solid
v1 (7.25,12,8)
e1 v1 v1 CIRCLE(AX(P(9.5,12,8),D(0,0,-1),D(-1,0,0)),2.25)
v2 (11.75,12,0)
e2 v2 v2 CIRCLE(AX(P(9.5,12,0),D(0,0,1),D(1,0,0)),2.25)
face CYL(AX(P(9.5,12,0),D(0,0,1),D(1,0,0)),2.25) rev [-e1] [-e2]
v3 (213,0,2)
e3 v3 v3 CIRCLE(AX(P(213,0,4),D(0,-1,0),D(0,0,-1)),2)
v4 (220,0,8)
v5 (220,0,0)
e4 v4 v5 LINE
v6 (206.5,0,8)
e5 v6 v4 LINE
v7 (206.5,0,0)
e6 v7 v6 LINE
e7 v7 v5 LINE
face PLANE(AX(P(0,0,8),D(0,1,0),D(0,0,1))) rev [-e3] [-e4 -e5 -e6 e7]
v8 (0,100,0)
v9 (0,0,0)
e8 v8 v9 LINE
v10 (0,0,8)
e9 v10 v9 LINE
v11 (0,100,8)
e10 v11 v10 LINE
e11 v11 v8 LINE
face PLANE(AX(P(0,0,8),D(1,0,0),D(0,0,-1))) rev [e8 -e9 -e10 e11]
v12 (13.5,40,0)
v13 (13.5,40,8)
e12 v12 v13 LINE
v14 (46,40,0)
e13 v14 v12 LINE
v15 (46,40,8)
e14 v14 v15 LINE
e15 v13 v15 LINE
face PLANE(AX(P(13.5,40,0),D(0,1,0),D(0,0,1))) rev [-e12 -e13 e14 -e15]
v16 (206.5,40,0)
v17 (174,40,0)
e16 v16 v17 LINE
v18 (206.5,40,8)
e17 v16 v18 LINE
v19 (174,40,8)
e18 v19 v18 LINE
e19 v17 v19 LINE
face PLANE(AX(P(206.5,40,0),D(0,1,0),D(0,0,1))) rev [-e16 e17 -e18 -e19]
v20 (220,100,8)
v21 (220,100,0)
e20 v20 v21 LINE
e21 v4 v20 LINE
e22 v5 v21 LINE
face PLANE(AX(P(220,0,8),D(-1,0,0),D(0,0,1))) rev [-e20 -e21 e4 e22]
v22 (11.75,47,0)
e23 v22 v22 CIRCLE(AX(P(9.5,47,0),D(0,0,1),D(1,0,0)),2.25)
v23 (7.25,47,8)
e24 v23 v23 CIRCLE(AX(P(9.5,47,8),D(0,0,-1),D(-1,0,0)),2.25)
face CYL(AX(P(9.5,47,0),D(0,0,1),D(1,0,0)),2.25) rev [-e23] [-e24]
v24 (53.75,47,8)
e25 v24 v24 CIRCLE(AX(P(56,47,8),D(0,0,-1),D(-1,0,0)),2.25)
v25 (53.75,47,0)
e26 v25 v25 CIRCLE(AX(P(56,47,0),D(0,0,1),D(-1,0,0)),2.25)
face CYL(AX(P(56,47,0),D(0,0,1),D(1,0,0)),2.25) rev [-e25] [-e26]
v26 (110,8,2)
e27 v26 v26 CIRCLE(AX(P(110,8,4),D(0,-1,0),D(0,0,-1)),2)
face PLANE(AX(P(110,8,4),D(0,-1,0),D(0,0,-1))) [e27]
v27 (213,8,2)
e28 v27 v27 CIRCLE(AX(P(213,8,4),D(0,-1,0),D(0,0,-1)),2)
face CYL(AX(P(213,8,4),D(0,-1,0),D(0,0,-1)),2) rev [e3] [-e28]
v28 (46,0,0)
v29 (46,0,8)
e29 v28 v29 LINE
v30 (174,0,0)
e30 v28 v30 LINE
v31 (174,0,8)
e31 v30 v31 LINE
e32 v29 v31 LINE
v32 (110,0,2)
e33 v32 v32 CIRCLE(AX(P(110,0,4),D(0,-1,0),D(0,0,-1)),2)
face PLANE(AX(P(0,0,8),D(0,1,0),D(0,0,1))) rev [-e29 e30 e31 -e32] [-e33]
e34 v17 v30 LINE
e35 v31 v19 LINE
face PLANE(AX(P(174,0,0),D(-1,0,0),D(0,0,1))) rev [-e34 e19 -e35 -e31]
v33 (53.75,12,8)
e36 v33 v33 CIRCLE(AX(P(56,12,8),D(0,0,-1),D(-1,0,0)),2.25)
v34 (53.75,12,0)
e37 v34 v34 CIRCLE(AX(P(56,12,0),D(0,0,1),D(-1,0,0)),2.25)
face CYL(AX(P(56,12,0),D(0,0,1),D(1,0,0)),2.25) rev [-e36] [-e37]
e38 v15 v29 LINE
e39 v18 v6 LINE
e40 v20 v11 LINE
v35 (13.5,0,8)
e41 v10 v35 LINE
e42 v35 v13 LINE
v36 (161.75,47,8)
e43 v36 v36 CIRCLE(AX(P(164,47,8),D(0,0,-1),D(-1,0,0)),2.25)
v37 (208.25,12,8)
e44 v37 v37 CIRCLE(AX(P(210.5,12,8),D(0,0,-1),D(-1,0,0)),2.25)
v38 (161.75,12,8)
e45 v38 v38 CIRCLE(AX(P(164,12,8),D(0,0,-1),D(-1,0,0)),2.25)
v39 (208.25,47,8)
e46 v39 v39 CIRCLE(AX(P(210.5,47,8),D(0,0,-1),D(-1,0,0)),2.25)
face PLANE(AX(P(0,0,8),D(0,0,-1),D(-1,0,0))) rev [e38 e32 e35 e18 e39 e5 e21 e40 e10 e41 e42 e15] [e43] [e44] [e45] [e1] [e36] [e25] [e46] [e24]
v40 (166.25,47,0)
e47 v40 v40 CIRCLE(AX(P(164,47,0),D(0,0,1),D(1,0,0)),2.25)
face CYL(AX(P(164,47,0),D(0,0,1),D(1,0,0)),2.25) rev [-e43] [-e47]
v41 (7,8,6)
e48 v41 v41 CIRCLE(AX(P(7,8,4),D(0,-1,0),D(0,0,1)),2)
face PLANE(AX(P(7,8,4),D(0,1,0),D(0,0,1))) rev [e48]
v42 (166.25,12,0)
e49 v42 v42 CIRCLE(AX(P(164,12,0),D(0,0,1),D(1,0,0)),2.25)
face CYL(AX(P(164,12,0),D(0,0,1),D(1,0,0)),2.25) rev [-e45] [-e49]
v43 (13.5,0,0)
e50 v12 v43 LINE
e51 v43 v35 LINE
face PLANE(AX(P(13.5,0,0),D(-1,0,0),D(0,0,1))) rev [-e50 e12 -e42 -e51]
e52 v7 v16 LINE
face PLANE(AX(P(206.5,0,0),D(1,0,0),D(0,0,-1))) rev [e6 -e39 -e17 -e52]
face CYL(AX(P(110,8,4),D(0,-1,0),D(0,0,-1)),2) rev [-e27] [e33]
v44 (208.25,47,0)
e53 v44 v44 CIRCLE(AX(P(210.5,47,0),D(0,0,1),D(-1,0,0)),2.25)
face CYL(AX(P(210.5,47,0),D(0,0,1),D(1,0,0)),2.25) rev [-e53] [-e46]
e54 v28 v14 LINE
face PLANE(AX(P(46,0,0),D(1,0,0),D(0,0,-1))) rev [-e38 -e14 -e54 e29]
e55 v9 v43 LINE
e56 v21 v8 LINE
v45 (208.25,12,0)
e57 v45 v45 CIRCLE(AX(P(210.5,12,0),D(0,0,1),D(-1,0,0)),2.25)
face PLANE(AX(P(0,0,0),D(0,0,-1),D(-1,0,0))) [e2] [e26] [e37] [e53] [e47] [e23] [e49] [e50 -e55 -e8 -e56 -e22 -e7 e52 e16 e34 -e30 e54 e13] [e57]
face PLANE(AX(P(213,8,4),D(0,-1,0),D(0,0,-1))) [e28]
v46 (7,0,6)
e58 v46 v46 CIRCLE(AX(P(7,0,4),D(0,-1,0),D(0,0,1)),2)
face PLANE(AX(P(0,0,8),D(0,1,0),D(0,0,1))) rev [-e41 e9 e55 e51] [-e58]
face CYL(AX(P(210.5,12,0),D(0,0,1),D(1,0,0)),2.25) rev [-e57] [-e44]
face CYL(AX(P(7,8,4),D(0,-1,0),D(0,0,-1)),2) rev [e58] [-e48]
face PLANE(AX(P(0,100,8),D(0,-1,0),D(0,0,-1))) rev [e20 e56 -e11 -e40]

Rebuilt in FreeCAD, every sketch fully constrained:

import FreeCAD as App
import Part
import Sketcher
Q = App.Units.Quantity

doc = App.newDocument("Part")
body = doc.addObject("PartDesign::Body", "Body")

# Sketch on XY plane
sketch1 = body.newObject("Sketcher::SketchObject", "Sketch")
sketch1.AttachmentSupport = (doc.getObject("XY_Plane"), [""])
sketch1.MapMode = "FlatFace"
sketch1.addGeometry(Part.LineSegment(App.Vector(0, 100, 0), App.Vector(0, 0, 0)), False)
sketch1.addGeometry(Part.LineSegment(App.Vector(0, 0, 0), App.Vector(220, 0, 0)), False)
sketch1.addGeometry(Part.LineSegment(App.Vector(220, 0, 0), App.Vector(220, 100, 0)), False)
sketch1.addGeometry(Part.LineSegment(App.Vector(220, 100, 0), App.Vector(0, 100, 0)), False)
sketch1.addConstraint(Sketcher.Constraint("Coincident", 0, 2, 1, 1))
sketch1.addConstraint(Sketcher.Constraint("Coincident", 1, 2, 2, 1))
sketch1.addConstraint(Sketcher.Constraint("Coincident", 2, 2, 3, 1))
sketch1.addConstraint(Sketcher.Constraint("Coincident", 3, 2, 0, 1))
sketch1.addConstraint(Sketcher.Constraint("Vertical", 0))
sketch1.addConstraint(Sketcher.Constraint("Horizontal", 1))
sketch1.addConstraint(Sketcher.Constraint("Vertical", 2))
sketch1.addConstraint(Sketcher.Constraint("Horizontal", 3))
sketch1.addConstraint(Sketcher.Constraint("Coincident", 0, 2, -1, 1))
sketch1.addConstraint(Sketcher.Constraint("DistanceX", 1, 1, 1, 2, Q("220 mm")))
sketch1.addConstraint(Sketcher.Constraint("DistanceY", 0, 2, 0, 1, Q("100 mm")))
pad1 = body.newObject("PartDesign::Pad", "Pad")
pad1.Profile = sketch1
pad1.Length = 8

# Sketch on XZ plane
sketch2 = body.newObject("Sketcher::SketchObject", "Sketch001")
sketch2.AttachmentSupport = (doc.getObject("XZ_Plane"), [""])
sketch2.MapMode = "FlatFace"
sketch2.addGeometry(Part.Circle(App.Vector(110, 4, 0), App.Vector(0, 0, 1), 2), False)
sketch2.addGeometry(Part.Circle(App.Vector(213, 4, 0), App.Vector(0, 0, 1), 2), False)
sketch2.addGeometry(Part.Circle(App.Vector(7, 4, 0), App.Vector(0, 0, 1), 2), False)
sketch2.addConstraint(Sketcher.Constraint("Equal", 0, 1))
sketch2.addConstraint(Sketcher.Constraint("Equal", 1, 2))
sketch2.addConstraint(Sketcher.Constraint("Horizontal", 0, 3, 1, 3))
sketch2.addConstraint(Sketcher.Constraint("Horizontal", 1, 3, 2, 3))
sketch2.addConstraint(Sketcher.Constraint("Diameter", 0, Q("4 mm")))
sketch2.addConstraint(Sketcher.Constraint("DistanceX", -1, 1, 0, 3, Q("110 mm")))
sketch2.addConstraint(Sketcher.Constraint("DistanceY", -1, 1, 0, 3, Q("4 mm")))
sketch2.addConstraint(Sketcher.Constraint("DistanceX", -1, 1, 1, 3, Q("213 mm")))
sketch2.addConstraint(Sketcher.Constraint("DistanceX", -1, 1, 2, 3, Q("7 mm")))
pocket1 = body.newObject("PartDesign::Pocket", "Pocket")
pocket1.Profile = sketch2
pocket1.Length = 8

# Sketch on XY plane
sketch3 = body.newObject("Sketcher::SketchObject", "Sketch002")
sketch3.AttachmentSupport = (doc.getObject("XY_Plane"), [""])
sketch3.MapMode = "FlatFace"
sketch3.AttachmentOffset = App.Placement(App.Vector(0, 0, 8), App.Rotation())
sketch3.addGeometry(Part.LineSegment(App.Vector(174, 40, 0), App.Vector(174, 0, 0)), False)
sketch3.addGeometry(Part.LineSegment(App.Vector(174, 0, 0), App.Vector(206, 0, 0)), False)
sketch3.addGeometry(Part.LineSegment(App.Vector(206, 0, 0), App.Vector(206, 40, 0)), False)
sketch3.addGeometry(Part.LineSegment(App.Vector(206, 40, 0), App.Vector(174, 40, 0)), False)
sketch3.addGeometry(Part.LineSegment(App.Vector(14, 40, 0), App.Vector(14, 0, 0)), False)
sketch3.addGeometry(Part.LineSegment(App.Vector(14, 0, 0), App.Vector(46, 0, 0)), False)
sketch3.addGeometry(Part.LineSegment(App.Vector(46, 0, 0), App.Vector(46, 40, 0)), False)
sketch3.addGeometry(Part.LineSegment(App.Vector(46, 40, 0), App.Vector(14, 40, 0)), False)
sketch3.addConstraint(Sketcher.Constraint("Coincident", 0, 2, 1, 1))
sketch3.addConstraint(Sketcher.Constraint("Coincident", 1, 2, 2, 1))
sketch3.addConstraint(Sketcher.Constraint("Coincident", 2, 2, 3, 1))
sketch3.addConstraint(Sketcher.Constraint("Coincident", 3, 2, 0, 1))
sketch3.addConstraint(Sketcher.Constraint("Coincident", 4, 2, 5, 1))
sketch3.addConstraint(Sketcher.Constraint("Coincident", 5, 2, 6, 1))
sketch3.addConstraint(Sketcher.Constraint("Coincident", 6, 2, 7, 1))
sketch3.addConstraint(Sketcher.Constraint("Coincident", 7, 2, 4, 1))
sketch3.addConstraint(Sketcher.Constraint("Vertical", 0))
sketch3.addConstraint(Sketcher.Constraint("Horizontal", 1))
sketch3.addConstraint(Sketcher.Constraint("Vertical", 2))
sketch3.addConstraint(Sketcher.Constraint("Horizontal", 3))
sketch3.addConstraint(Sketcher.Constraint("Vertical", 4))
sketch3.addConstraint(Sketcher.Constraint("Horizontal", 5))
sketch3.addConstraint(Sketcher.Constraint("Vertical", 6))
sketch3.addConstraint(Sketcher.Constraint("Horizontal", 7))
sketch3.addConstraint(Sketcher.Constraint("PointOnObject", 0, 2, -1))
sketch3.addConstraint(Sketcher.Constraint("PointOnObject", 4, 2, -1))
sketch3.addConstraint(Sketcher.Constraint("Horizontal", 3, 2, 6, 2))
sketch3.addConstraint(Sketcher.Constraint("Equal", 3, 5))
sketch3.addConstraint(Sketcher.Constraint("DistanceY", 0, 2, 0, 1, Q("40 mm")))
sketch3.addConstraint(Sketcher.Constraint("DistanceX", 1, 1, 1, 2, Q("32.5 mm")))
sketch3.addConstraint(Sketcher.Constraint("DistanceX", -1, 1, 0, 2, Q("174 mm")))
sketch3.addConstraint(Sketcher.Constraint("DistanceX", -1, 1, 5, 2, Q("46 mm")))
pocket2 = body.newObject("PartDesign::Pocket", "Pocket001")
pocket2.Profile = sketch3
pocket2.Type = "ThroughAll"
pocket2.Midplane = True

# Sketch on XY plane
sketch4 = body.newObject("Sketcher::SketchObject", "Sketch003")
sketch4.AttachmentSupport = (doc.getObject("XY_Plane"), [""])
sketch4.MapMode = "FlatFace"
sketch4.AttachmentOffset = App.Placement(App.Vector(0, 0, 8), App.Rotation())
sketch4.addGeometry(Part.Circle(App.Vector(9.5, 12, 0), App.Vector(0, 0, 1), 2.2), False)
sketch4.addGeometry(Part.Circle(App.Vector(9.5, 47, 0), App.Vector(0, 0, 1), 2.2), False)
sketch4.addGeometry(Part.Circle(App.Vector(210.5, 47, 0), App.Vector(0, 0, 1), 2.2), False)
sketch4.addGeometry(Part.Circle(App.Vector(210.5, 12, 0), App.Vector(0, 0, 1), 2.2), False)
sketch4.addGeometry(Part.Circle(App.Vector(56, 47, 0), App.Vector(0, 0, 1), 2.2), False)
sketch4.addGeometry(Part.Circle(App.Vector(56, 12, 0), App.Vector(0, 0, 1), 2.2), False)
sketch4.addGeometry(Part.Circle(App.Vector(164, 12, 0), App.Vector(0, 0, 1), 2.2), False)
sketch4.addGeometry(Part.Circle(App.Vector(164, 47, 0), App.Vector(0, 0, 1), 2.2), False)
sketch4.addConstraint(Sketcher.Constraint("Equal", 0, 1))
sketch4.addConstraint(Sketcher.Constraint("Equal", 1, 2))
sketch4.addConstraint(Sketcher.Constraint("Equal", 2, 3))
sketch4.addConstraint(Sketcher.Constraint("Equal", 3, 4))
sketch4.addConstraint(Sketcher.Constraint("Equal", 4, 5))
sketch4.addConstraint(Sketcher.Constraint("Equal", 5, 6))
sketch4.addConstraint(Sketcher.Constraint("Equal", 6, 7))
sketch4.addConstraint(Sketcher.Constraint("Horizontal", 1, 3, 2, 3))
sketch4.addConstraint(Sketcher.Constraint("Horizontal", 0, 3, 3, 3))
sketch4.addConstraint(Sketcher.Constraint("Horizontal", 2, 3, 4, 3))
sketch4.addConstraint(Sketcher.Constraint("Horizontal", 3, 3, 5, 3))
sketch4.addConstraint(Sketcher.Constraint("Horizontal", 5, 3, 6, 3))
sketch4.addConstraint(Sketcher.Constraint("Horizontal", 4, 3, 7, 3))
sketch4.addConstraint(Sketcher.Constraint("Vertical", 0, 3, 1, 3))
sketch4.addConstraint(Sketcher.Constraint("Vertical", 2, 3, 3, 3))
sketch4.addConstraint(Sketcher.Constraint("Vertical", 4, 3, 5, 3))
sketch4.addConstraint(Sketcher.Constraint("Vertical", 6, 3, 7, 3))
sketch4.addConstraint(Sketcher.Constraint("Diameter", 0, Q("4.5 mm")))
sketch4.addConstraint(Sketcher.Constraint("DistanceY", -1, 1, 0, 3, Q("12 mm")))
sketch4.addConstraint(Sketcher.Constraint("DistanceY", -1, 1, 1, 3, Q("47 mm")))
sketch4.addConstraint(Sketcher.Constraint("DistanceX", -1, 1, 4, 3, Q("56 mm")))
sketch4.addConstraint(Sketcher.Constraint("DistanceX", -1, 1, 6, 3, Q("164 mm")))
sketch4.addConstraint(Sketcher.Constraint("DistanceX", 1, 3, 2, 3, Q("201 mm")))
sketch4.addConstraint(Sketcher.Constraint("DistanceX", -1, 1, 0, 3, Q("9.5 mm")))
pocket3 = body.newObject("PartDesign::Pocket", "Pocket002")
pocket3.Profile = sketch4
pocket3.Type = "ThroughAll"
pocket3.Midplane = True

doc.recompute()
